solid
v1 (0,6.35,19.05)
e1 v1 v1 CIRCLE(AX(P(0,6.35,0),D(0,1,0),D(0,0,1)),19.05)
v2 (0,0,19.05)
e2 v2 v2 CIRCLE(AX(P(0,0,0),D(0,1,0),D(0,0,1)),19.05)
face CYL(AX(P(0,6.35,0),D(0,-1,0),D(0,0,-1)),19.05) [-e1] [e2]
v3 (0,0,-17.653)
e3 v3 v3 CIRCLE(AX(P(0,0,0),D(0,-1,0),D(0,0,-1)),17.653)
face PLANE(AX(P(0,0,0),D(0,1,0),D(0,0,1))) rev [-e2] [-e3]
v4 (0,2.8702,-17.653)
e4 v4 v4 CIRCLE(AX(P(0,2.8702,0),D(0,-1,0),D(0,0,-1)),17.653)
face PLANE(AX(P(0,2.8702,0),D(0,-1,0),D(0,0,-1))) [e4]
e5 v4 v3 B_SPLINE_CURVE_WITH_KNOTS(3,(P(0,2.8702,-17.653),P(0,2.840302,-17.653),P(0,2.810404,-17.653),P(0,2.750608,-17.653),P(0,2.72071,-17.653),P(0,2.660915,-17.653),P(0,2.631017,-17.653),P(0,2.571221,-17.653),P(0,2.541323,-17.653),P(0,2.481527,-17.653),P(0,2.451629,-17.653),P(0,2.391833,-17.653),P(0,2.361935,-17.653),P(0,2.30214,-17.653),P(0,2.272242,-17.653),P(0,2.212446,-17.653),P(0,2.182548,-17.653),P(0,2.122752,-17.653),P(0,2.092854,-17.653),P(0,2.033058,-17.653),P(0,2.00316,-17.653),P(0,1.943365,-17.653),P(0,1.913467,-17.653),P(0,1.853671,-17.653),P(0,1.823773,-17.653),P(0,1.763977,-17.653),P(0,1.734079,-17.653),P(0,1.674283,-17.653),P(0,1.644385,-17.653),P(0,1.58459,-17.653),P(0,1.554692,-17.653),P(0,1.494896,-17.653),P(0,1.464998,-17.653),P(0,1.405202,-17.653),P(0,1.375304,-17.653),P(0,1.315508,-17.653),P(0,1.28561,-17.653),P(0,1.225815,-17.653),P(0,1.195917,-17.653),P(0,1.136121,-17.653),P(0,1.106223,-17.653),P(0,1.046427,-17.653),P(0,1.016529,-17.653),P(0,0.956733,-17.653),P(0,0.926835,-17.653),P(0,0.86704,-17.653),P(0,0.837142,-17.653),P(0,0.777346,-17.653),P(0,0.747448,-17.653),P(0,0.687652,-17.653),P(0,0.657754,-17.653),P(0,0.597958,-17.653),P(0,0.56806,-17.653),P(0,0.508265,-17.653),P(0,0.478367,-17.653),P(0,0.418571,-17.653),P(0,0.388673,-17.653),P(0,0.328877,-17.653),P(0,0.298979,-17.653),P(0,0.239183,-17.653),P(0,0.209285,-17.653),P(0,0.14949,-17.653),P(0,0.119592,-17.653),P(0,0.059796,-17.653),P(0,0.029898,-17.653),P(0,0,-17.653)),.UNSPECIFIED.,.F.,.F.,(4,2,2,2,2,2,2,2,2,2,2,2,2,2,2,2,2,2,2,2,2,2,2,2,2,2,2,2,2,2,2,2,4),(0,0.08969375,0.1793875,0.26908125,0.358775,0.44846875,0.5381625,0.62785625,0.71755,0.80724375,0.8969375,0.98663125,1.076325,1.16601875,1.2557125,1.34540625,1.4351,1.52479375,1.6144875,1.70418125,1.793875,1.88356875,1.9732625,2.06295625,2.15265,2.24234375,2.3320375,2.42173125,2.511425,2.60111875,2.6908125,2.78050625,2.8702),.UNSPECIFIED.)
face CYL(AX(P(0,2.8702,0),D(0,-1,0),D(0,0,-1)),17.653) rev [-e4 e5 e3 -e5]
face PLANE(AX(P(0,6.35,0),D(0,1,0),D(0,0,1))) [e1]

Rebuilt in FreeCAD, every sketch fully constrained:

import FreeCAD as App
import Part
import Sketcher
Q = App.Units.Quantity

doc = App.newDocument("Part")
body = doc.addObject("PartDesign::Body", "Body")

sketch1 = body.newObject("Sketcher::SketchObject", "Sketch")
sketch1.AttachmentSupport = (doc.getObject("XZ_Plane"), [""])
sketch1.MapMode = "FlatFace"
sketch1.addGeometry(Part.Circle(App.Vector(0, 0, 0), App.Vector(0, 0, 1), 19), False)
sketch1.addConstraint(Sketcher.Constraint("Coincident", 0, 3, -1, 1))
sketch1.addConstraint(Sketcher.Constraint("Diameter", 0, Q("1.5 in")))
pad1 = body.newObject("PartDesign::Pad", "Pad")
pad1.Profile = sketch1
pad1.Length = Q("0.25 in")
pad1.Reversed = True

sketch2 = body.newObject("Sketcher::SketchObject", "Sketch001")
sketch2.AttachmentSupport = (doc.getObject("XZ_Plane"), [""])
sketch2.MapMode = "FlatFace"
sketch2.addGeometry(Part.Circle(App.Vector(0, 0, 0), App.Vector(0, 0, 1), 18), False)
sketch2.addConstraint(Sketcher.Constraint("Coincident", 0, 3, -1, 1))
sketch2.addConstraint(Sketcher.Constraint("Diameter", 0, Q("1.39 in")))
pocket1 = body.newObject("PartDesign::Pocket", "Pocket")
pocket1.Profile = sketch2
pocket1.Length = Q("0.113 in")

doc.recompute()
